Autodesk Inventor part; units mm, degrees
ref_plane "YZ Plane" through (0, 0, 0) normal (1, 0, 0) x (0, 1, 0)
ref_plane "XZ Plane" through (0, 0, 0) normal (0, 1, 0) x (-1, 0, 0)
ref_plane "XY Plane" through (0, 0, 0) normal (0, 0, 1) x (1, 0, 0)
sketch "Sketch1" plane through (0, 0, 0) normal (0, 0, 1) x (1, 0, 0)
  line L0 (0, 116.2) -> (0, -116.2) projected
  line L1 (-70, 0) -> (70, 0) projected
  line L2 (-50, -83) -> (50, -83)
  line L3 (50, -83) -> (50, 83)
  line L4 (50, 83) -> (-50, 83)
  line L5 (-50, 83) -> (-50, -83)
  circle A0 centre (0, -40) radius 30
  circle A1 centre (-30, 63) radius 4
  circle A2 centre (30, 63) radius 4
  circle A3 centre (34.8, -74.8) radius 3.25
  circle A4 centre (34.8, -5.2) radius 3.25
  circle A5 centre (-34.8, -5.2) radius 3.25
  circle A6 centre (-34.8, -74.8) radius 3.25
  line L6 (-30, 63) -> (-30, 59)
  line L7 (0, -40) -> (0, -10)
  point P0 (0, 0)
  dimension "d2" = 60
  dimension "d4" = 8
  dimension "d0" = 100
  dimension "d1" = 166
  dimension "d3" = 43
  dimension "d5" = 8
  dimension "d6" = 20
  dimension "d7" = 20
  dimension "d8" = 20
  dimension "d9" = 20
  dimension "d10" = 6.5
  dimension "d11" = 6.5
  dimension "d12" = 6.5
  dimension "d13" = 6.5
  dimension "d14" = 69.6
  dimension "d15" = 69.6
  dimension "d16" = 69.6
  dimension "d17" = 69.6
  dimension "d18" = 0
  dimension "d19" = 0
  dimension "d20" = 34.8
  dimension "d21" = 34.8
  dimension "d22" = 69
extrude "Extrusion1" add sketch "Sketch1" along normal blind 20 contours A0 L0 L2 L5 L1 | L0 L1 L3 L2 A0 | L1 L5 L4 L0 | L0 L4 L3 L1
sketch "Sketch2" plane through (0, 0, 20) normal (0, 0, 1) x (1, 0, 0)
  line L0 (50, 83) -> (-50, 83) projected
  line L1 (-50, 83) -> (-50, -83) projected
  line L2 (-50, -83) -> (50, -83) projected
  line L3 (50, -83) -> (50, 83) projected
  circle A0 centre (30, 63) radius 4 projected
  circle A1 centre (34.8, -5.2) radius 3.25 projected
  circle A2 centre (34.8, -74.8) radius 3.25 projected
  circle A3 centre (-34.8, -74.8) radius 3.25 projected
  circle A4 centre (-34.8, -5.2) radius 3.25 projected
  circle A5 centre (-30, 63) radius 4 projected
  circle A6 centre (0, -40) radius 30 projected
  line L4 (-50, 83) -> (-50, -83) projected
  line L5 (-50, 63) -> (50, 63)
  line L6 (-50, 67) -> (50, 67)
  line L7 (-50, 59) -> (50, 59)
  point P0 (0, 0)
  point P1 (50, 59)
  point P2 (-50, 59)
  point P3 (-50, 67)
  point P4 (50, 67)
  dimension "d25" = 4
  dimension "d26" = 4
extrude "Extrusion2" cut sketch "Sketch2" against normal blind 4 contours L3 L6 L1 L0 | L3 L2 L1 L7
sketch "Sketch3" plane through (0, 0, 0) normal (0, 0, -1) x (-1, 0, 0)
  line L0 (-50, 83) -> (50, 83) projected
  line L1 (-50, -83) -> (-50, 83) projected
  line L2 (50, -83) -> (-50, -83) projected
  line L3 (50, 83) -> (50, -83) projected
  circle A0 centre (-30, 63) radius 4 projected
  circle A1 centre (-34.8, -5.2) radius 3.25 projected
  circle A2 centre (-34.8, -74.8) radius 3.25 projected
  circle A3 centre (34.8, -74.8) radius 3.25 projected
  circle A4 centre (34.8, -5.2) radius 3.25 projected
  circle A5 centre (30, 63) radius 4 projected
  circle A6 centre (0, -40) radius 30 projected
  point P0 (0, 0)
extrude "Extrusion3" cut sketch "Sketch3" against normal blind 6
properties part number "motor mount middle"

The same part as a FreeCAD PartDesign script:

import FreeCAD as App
import Part
import Sketcher
from FreeCAD import Vector

doc = App.newDocument("Part")
body = doc.addObject("PartDesign::Body", "Body")

# Sketch on XY plane
sketch1 = body.newObject("Sketcher::SketchObject", "Sketch")
sketch1.AttachmentSupport = (doc.getObject("XY_Plane"), [""])
sketch1.MapMode = "FlatFace"
sketch1.addGeometry(Part.LineSegment(Vector(-50, -83, 0), Vector(50, -83, 0)), False)
sketch1.addGeometry(Part.LineSegment(Vector(50, -83, 0), Vector(50, 83, 0)), False)
sketch1.addGeometry(Part.LineSegment(Vector(50, 83, 0), Vector(-50, 83, 0)), False)
sketch1.addGeometry(Part.LineSegment(Vector(-50, 83, 0), Vector(-50, -83, 0)), False)
sketch1.addGeometry(Part.Circle(Vector(0, -40, 0), Vector(0, 0, 1), 30), False)
sketch1.addGeometry(Part.Circle(Vector(-34.8, -74.8, 0), Vector(0, 0, 1), 3.25), False)
sketch1.addGeometry(Part.Circle(Vector(-34.8, -5.2, 0), Vector(0, 0, 1), 3.25), False)
sketch1.addGeometry(Part.Circle(Vector(34.8, -74.8, 0), Vector(0, 0, 1), 3.25), False)
sketch1.addGeometry(Part.Circle(Vector(34.8, -5.2, 0), Vector(0, 0, 1), 3.25), False)
sketch1.addGeometry(Part.Circle(Vector(-30, 63, 0), Vector(0, 0, 1), 4), False)
sketch1.addGeometry(Part.Circle(Vector(30, 63, 0), Vector(0, 0, 1), 4), False)
sketch1.addConstraint(Sketcher.Constraint("Coincident", 0, 2, 1, 1))
sketch1.addConstraint(Sketcher.Constraint("Coincident", 1, 2, 2, 1))
sketch1.addConstraint(Sketcher.Constraint("Coincident", 2, 2, 3, 1))
sketch1.addConstraint(Sketcher.Constraint("Coincident", 3, 2, 0, 1))
sketch1.addConstraint(Sketcher.Constraint("Horizontal", 0))
sketch1.addConstraint(Sketcher.Constraint("Vertical", 1))
sketch1.addConstraint(Sketcher.Constraint("Horizontal", 2))
sketch1.addConstraint(Sketcher.Constraint("Vertical", 3))
sketch1.addConstraint(Sketcher.Constraint("Equal", 5, 6))
sketch1.addConstraint(Sketcher.Constraint("Equal", 6, 7))
sketch1.addConstraint(Sketcher.Constraint("Equal", 7, 8))
sketch1.addConstraint(Sketcher.Constraint("Equal", 9, 10))
sketch1.addConstraint(Sketcher.Constraint("Symmetric", 0, 2, 2, 2, -1, 1))
sketch1.addConstraint(Sketcher.Constraint("Symmetric", 5, 3, 7, 3, -2))
sketch1.addConstraint(Sketcher.Constraint("Symmetric", 6, 3, 8, 3, -2))
sketch1.addConstraint(Sketcher.Constraint("Symmetric", 9, 3, 10, 3, -2))
sketch1.addConstraint(Sketcher.Constraint("PointOnObject", 4, 3, -2))
sketch1.addConstraint(Sketcher.Constraint("Vertical", 5, 3, 6, 3))
sketch1.addConstraint(Sketcher.Constraint("Diameter", 4, 60.0))
sketch1.addConstraint(Sketcher.Constraint("Diameter", 9, 8.0))
sketch1.addConstraint(Sketcher.Constraint("Diameter", 5, 6.5))
sketch1.addConstraint(Sketcher.Constraint("DistanceX", 0, 1, 0, 2, 100.0))
sketch1.addConstraint(Sketcher.Constraint("DistanceY", 1, 1, 1, 2, 166.0))
sketch1.addConstraint(Sketcher.Constraint("DistanceX", 9, 3, 10, 3, 60.0))
sketch1.addConstraint(Sketcher.Constraint("DistanceY", 0, 2, 4, 3, 43.0))
sketch1.addConstraint(Sketcher.Constraint("DistanceY", 10, 3, 1, 2, 20.0))
sketch1.addConstraint(Sketcher.Constraint("DistanceX", 5, 3, -1, 1, 34.8))
sketch1.addConstraint(Sketcher.Constraint("DistanceY", 5, 3, 4, 3, 34.8))
sketch1.addConstraint(Sketcher.Constraint("DistanceY", 4, 3, 6, 3, 34.8))
pad1 = body.newObject("PartDesign::Pad", "Pad")
pad1.Profile = sketch1
pad1.Length = 20

# Sketch on XY plane
sketch2 = body.newObject("Sketcher::SketchObject", "Sketch001")
sketch2.AttachmentSupport = (doc.getObject("XY_Plane"), [""])
sketch2.MapMode = "FlatFace"
sketch2.AttachmentOffset = App.Placement(Vector(0, 0, 20), App.Rotation())
sketch2.addGeometry(Part.LineSegment(Vector(50, 67, 0), Vector(50, 83, 0)), False)
sketch2.addGeometry(Part.LineSegment(Vector(50, 83, 0), Vector(-50, 83, 0)), False)
sketch2.addGeometry(Part.LineSegment(Vector(-50, 83, 0), Vector(-50, 67, 0)), False)
sketch2.addGeometry(Part.LineSegment(Vector(-50, 67, 0), Vector(50, 67, 0)), False)
sketch2.addGeometry(Part.LineSegment(Vector(50, -83, 0), Vector(50, 59, 0)), False)
sketch2.addGeometry(Part.LineSegment(Vector(50, 59, 0), Vector(-50, 59, 0)), False)
sketch2.addGeometry(Part.LineSegment(Vector(-50, 59, 0), Vector(-50, -83, 0)), False)
sketch2.addGeometry(Part.LineSegment(Vector(-50, -83, 0), Vector(50, -83, 0)), False)
sketch2.addGeometry(Part.Circle(Vector(-34.8, -74.8, 0), Vector(0, 0, 1), 3.25), False)
sketch2.addGeometry(Part.Circle(Vector(-34.8, -5.2, 0), Vector(0, 0, 1), 3.25), False)
sketch2.addGeometry(Part.Circle(Vector(34.8, -74.8, 0), Vector(0, 0, 1), 3.25), False)
sketch2.addGeometry(Part.Circle(Vector(0, -40, 0), Vector(0, 0, 1), 30), False)
sketch2.addGeometry(Part.Circle(Vector(34.8, -5.2, 0), Vector(0, 0, 1), 3.25), False)
sketch2.addConstraint(Sketcher.Constraint("Coincident", 0, 2, 1, 1))
sketch2.addConstraint(Sketcher.Constraint("Coincident", 1, 2, 2, 1))
sketch2.addConstraint(Sketcher.Constraint("Coincident", 2, 2, 3, 1))
sketch2.addConstraint(Sketcher.Constraint("Coincident", 3, 2, 0, 1))
sketch2.addConstraint(Sketcher.Constraint("Coincident", 4, 2, 5, 1))
sketch2.addConstraint(Sketcher.Constraint("Coincident", 5, 2, 6, 1))
sketch2.addConstraint(Sketcher.Constraint("Coincident", 6, 2, 7, 1))
sketch2.addConstraint(Sketcher.Constraint("Coincident", 7, 2, 4, 1))
sketch2.addConstraint(Sketcher.Constraint("Vertical", 0))
sketch2.addConstraint(Sketcher.Constraint("Horizontal", 1))
sketch2.addConstraint(Sketcher.Constraint("Vertical", 2))
sketch2.addConstraint(Sketcher.Constraint("Horizontal", 3))
sketch2.addConstraint(Sketcher.Constraint("Vertical", 4))
sketch2.addConstraint(Sketcher.Constraint("Horizontal", 5))
sketch2.addConstraint(Sketcher.Constraint("Vertical", 6))
sketch2.addConstraint(Sketcher.Constraint("Horizontal", 7))
sketch2.addConstraint(Sketcher.Constraint("Equal", 8, 9))
sketch2.addConstraint(Sketcher.Constraint("Equal", 9, 10))
sketch2.addConstraint(Sketcher.Constraint("Equal", 10, 12))
sketch2.addConstraint(Sketcher.Constraint("Symmetric", 0, 2, 6, 2, -1, 1))
sketch2.addConstraint(Sketcher.Constraint("Symmetric", 8, 3, 10, 3, -2))
sketch2.addConstraint(Sketcher.Constraint("Symmetric", 9, 3, 12, 3, -2))
sketch2.addConstraint(Sketcher.Constraint("PointOnObject", 11, 3, -2))
sketch2.addConstraint(Sketcher.Constraint("Vertical", 8, 3, 9, 3))
sketch2.addConstraint(Sketcher.Constraint("Vertical", 3, 2, 4, 2))
sketch2.addConstraint(Sketcher.Constraint("Vertical", 2, 2, 5, 2))
sketch2.addConstraint(Sketcher.Constraint("Diameter", 11, 60.0))
sketch2.addConstraint(Sketcher.Constraint("Diameter", 8, 6.5))
sketch2.addConstraint(Sketcher.Constraint("DistanceX", 1, 2, 1, 1, 100.0))
sketch2.addConstraint(Sketcher.Constraint("DistanceY", 0, 1, 0, 2, 16.0))
sketch2.addConstraint(Sketcher.Constraint("DistanceY", 4, 1, 4, 2, 142.0))
sketch2.addConstraint(Sketcher.Constraint("DistanceY", 11, 3, -1, 1, 40.0))
sketch2.addConstraint(Sketcher.Constraint("DistanceY", -1, 1, 0, 2, 83.0))
sketch2.addConstraint(Sketcher.Constraint("DistanceX", 8, 3, -1, 1, 34.8))
sketch2.addConstraint(Sketcher.Constraint("DistanceY", 8, 3, -1, 1, 74.8))
sketch2.addConstraint(Sketcher.Constraint("DistanceY", 9, 3, -1, 1, 5.2))
pocket1 = body.newObject("PartDesign::Pocket", "Pocket")
pocket1.Profile = sketch2
pocket1.Length = 4

# Sketch on XY plane
sketch3 = body.newObject("Sketcher::SketchObject", "Sketch002")
sketch3.AttachmentSupport = (doc.getObject("XY_Plane"), [""])
sketch3.MapMode = "FlatFace"
sketch3.addGeometry(Part.LineSegment(Vector(-50, 83, 0), Vector(50, 83, 0)), False)
sketch3.addGeometry(Part.LineSegment(Vector(50, 83, 0), Vector(50, -83, 0)), False)
sketch3.addGeometry(Part.LineSegment(Vector(50, -83, 0), Vector(-50, -83, 0)), False)
sketch3.addGeometry(Part.LineSegment(Vector(-50, -83, 0), Vector(-50, 83, 0)), False)
sketch3.addGeometry(Part.Circle(Vector(34.8, -74.8, 0), Vector(0, 0, 1), 3.25), False)
sketch3.addGeometry(Part.Circle(Vector(34.8, -5.2, 0), Vector(0, 0, 1), 3.25), False)
sketch3.addGeometry(Part.Circle(Vector(-34.8, -74.8, 0), Vector(0, 0, 1), 3.25), False)
sketch3.addGeometry(Part.Circle(Vector(0, -40, 0), Vector(0, 0, 1), 30), False)
sketch3.addGeometry(Part.Circle(Vector(-34.8, -5.2, 0), Vector(0, 0, 1), 3.25), False)
sketch3.addGeometry(Part.Circle(Vector(30, 63, 0), Vector(0, 0, 1), 4), False)
sketch3.addGeometry(Part.Circle(Vector(-30, 63, 0), Vector(0, 0, 1), 4), False)
sketch3.addConstraint(Sketcher.Constraint("Coincident", 0, 2, 1, 1))
sketch3.addConstraint(Sketcher.Constraint("Coincident", 1, 2, 2, 1))
sketch3.addConstraint(Sketcher.Constraint("Coincident", 2, 2, 3, 1))
sketch3.addConstraint(Sketcher.Constraint("Coincident", 3, 2, 0, 1))
sketch3.addConstraint(Sketcher.Constraint("Horizontal", 0))
sketch3.addConstraint(Sketcher.Constraint("Vertical", 1))
sketch3.addConstraint(Sketcher.Constraint("Horizontal", 2))
sketch3.addConstraint(Sketcher.Constraint("Vertical", 3))
sketch3.addConstraint(Sketcher.Constraint("Equal", 4, 5))
sketch3.addConstraint(Sketcher.Constraint("Equal", 5, 6))
sketch3.addConstraint(Sketcher.Constraint("Equal", 6, 8))
sketch3.addConstraint(Sketcher.Constraint("Equal", 9, 10))
sketch3.addConstraint(Sketcher.Constraint("Symmetric", 0, 2, 2, 2, -1, 1))
sketch3.addConstraint(Sketcher.Constraint("Symmetric", 4, 3, 6, 3, -2))
sketch3.addConstraint(Sketcher.Constraint("Symmetric", 5, 3, 8, 3, -2))
sketch3.addConstraint(Sketcher.Constraint("Symmetric", 9, 3, 10, 3, -2))
sketch3.addConstraint(Sketcher.Constraint("PointOnObject", 7, 3, -2))
sketch3.addConstraint(Sketcher.Constraint("Vertical", 4, 3, 5, 3))
sketch3.addConstraint(Sketcher.Constraint("Diameter", 7, 60.0))
sketch3.addConstraint(Sketcher.Constraint("Diameter", 9, 8.0))
sketch3.addConstraint(Sketcher.Constraint("Diameter", 4, 6.5))
sketch3.addConstraint(Sketcher.Constraint("DistanceX", 0, 1, 0, 2, 100.0))
sketch3.addConstraint(Sketcher.Constraint("DistanceY", 1, 2, 1, 1, 166.0))
sketch3.addConstraint(Sketcher.Constraint("DistanceY", 7, 3, -1, 1, 40.0))
sketch3.addConstraint(Sketcher.Constraint("DistanceX", -1, 1, 9, 3, 30.0))
sketch3.addConstraint(Sketcher.Constraint("DistanceY", -1, 1, 9, 3, 63.0))
sketch3.addConstraint(Sketcher.Constraint("DistanceX", -1, 1, 4, 3, 34.8))
sketch3.addConstraint(Sketcher.Constraint("DistanceY", 4, 3, -1, 1, 74.8))
sketch3.addConstraint(Sketcher.Constraint("DistanceY", 5, 3, -1, 1, 5.2))
pocket2 = body.newObject("PartDesign::Pocket", "Pocket001")
pocket2.Profile = sketch3
pocket2.Length = 6
pocket2.Reversed = True

doc.recompute()
